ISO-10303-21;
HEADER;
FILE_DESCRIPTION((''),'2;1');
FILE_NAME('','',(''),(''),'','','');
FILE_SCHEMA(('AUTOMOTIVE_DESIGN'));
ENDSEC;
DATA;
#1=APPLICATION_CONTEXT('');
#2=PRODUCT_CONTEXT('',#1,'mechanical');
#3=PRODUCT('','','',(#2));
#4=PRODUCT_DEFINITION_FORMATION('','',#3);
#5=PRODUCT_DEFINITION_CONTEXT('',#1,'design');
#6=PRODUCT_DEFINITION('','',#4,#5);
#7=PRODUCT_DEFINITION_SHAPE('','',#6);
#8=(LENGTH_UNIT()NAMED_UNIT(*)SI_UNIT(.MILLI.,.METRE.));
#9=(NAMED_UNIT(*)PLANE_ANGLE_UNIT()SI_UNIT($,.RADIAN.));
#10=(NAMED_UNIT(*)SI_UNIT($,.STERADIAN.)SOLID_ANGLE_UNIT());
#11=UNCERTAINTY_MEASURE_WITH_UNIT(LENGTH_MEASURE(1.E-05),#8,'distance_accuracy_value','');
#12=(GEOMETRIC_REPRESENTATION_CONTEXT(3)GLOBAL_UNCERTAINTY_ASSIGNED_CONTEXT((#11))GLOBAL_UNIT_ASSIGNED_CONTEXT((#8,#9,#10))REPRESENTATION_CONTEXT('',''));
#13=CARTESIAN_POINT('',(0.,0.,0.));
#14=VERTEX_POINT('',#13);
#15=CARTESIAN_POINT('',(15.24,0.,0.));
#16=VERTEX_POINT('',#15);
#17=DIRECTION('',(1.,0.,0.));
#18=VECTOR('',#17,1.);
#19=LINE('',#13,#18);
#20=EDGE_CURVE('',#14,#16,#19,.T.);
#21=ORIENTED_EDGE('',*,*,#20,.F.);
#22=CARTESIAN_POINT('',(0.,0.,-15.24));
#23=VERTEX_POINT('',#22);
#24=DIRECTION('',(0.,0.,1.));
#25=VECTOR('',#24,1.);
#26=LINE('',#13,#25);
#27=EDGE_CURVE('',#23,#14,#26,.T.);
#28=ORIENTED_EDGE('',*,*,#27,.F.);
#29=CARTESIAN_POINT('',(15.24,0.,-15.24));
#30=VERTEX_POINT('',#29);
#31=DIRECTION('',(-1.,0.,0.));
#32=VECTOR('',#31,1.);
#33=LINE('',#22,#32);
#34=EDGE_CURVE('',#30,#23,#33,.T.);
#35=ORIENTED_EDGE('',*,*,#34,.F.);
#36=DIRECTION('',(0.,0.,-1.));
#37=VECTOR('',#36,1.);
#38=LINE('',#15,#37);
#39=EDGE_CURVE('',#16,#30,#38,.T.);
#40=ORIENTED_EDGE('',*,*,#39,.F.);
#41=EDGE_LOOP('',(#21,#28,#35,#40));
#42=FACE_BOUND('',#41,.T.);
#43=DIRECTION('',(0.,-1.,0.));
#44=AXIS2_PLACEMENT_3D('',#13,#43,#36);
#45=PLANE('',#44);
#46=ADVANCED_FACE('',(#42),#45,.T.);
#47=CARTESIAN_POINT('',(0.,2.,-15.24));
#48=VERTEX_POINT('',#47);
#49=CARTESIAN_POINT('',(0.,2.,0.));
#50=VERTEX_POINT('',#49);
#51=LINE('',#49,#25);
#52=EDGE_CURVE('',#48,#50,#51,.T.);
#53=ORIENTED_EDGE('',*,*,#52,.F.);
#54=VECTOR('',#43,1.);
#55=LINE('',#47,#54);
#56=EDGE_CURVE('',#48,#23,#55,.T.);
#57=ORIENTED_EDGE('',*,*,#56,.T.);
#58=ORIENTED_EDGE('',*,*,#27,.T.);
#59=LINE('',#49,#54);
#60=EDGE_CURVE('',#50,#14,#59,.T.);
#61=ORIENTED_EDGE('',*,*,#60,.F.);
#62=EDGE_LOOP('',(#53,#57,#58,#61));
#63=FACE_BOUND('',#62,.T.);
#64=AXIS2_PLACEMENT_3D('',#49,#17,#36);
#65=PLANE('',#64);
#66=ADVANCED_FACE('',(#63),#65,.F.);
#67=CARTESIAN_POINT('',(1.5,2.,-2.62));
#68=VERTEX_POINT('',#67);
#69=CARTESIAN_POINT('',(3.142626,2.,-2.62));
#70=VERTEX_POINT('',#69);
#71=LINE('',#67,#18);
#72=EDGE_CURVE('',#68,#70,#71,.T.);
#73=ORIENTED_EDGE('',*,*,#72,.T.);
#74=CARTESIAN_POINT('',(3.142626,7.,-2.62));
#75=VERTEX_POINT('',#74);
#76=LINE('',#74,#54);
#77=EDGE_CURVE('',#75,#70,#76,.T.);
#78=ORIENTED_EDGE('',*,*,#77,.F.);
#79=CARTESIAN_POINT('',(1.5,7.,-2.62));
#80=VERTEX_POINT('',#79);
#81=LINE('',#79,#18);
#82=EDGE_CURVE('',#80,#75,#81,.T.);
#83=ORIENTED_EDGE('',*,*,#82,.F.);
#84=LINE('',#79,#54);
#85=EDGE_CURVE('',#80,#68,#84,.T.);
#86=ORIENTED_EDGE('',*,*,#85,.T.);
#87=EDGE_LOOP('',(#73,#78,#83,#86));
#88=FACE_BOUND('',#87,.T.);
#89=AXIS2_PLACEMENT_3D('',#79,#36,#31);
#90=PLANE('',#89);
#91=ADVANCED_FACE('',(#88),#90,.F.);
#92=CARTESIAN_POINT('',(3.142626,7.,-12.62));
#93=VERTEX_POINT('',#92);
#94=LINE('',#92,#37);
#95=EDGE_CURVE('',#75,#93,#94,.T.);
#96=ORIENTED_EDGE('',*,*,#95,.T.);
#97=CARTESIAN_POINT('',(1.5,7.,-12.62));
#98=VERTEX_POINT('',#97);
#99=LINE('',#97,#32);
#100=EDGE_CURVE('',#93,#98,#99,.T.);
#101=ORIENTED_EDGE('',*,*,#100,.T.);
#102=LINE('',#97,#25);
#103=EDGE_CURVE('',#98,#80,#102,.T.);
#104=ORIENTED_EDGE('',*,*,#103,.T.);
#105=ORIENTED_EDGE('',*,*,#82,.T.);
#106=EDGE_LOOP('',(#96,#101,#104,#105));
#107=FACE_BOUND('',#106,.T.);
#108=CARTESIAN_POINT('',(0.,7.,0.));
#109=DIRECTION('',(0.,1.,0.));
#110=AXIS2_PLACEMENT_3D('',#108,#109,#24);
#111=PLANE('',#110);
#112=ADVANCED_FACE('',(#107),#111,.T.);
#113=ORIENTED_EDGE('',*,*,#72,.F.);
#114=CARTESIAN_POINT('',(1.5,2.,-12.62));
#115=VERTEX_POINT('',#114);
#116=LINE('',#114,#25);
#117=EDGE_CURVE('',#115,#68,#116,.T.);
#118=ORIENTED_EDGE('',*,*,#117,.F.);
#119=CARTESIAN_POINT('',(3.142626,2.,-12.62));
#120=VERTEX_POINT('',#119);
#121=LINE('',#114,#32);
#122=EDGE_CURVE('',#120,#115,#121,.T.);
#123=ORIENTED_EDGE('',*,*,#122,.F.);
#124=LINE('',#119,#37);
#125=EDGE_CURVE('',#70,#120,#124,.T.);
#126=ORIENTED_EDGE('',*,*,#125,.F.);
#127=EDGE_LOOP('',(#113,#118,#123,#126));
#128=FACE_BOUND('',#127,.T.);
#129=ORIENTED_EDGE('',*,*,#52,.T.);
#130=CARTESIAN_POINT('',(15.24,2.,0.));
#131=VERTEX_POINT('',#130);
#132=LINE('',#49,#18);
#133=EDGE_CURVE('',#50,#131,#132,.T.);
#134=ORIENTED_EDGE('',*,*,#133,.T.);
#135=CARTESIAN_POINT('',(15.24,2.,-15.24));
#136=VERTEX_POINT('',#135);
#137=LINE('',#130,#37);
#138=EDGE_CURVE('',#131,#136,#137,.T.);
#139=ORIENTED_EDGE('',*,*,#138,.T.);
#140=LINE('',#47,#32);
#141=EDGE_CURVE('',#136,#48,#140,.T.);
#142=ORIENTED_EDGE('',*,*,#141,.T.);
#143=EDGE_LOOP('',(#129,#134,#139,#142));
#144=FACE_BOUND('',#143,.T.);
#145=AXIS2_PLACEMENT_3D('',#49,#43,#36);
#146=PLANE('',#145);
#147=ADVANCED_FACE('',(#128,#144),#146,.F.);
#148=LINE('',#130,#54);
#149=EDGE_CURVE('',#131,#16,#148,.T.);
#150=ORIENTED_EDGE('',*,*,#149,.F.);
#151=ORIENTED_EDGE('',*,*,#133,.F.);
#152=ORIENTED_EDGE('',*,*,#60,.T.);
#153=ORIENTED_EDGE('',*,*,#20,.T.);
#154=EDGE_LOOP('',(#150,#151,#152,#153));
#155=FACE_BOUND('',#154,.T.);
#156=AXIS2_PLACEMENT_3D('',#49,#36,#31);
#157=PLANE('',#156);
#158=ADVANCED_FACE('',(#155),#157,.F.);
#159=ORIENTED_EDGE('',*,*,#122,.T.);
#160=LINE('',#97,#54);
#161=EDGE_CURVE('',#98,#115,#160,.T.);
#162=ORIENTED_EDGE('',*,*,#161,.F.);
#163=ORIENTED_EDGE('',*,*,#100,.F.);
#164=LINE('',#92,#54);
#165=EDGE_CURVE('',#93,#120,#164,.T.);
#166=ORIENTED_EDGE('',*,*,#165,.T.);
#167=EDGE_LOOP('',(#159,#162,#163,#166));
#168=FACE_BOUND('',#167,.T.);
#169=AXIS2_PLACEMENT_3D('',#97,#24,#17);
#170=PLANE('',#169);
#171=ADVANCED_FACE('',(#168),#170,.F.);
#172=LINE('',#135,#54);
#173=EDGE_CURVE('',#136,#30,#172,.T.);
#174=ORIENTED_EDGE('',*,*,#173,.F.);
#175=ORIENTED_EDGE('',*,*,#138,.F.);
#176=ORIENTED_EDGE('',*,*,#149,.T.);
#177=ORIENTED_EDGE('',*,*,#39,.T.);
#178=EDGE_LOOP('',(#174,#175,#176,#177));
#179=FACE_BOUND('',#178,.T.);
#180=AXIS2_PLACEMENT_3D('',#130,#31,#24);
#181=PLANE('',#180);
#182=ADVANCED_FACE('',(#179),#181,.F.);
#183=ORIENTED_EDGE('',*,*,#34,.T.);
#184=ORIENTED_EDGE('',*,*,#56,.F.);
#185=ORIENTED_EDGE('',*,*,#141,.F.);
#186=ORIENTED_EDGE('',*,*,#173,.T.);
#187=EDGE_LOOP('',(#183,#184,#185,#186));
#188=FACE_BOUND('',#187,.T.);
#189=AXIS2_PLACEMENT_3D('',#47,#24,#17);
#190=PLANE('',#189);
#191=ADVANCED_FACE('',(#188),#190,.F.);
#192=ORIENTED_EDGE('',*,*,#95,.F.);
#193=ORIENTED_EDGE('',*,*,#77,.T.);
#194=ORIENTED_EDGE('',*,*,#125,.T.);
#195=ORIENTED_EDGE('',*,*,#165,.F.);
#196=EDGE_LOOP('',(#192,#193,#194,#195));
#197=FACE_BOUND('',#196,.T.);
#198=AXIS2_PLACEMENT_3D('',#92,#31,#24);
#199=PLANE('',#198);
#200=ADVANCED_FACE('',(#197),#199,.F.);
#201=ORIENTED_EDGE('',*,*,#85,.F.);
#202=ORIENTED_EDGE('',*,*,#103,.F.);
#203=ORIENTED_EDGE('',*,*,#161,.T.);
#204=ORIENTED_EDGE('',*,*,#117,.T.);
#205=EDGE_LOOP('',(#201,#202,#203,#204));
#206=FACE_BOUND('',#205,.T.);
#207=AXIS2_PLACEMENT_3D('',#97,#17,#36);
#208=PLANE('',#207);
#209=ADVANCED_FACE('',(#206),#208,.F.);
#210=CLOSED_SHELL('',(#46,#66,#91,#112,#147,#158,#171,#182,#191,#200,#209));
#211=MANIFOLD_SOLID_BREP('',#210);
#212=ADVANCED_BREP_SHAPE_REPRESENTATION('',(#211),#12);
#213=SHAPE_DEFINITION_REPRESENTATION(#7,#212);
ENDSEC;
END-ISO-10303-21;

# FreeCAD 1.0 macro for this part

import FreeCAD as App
import Part
import Sketcher
from FreeCAD import Vector
Q = App.Units.Quantity


def add_polygon(sketch, points):
    """Adds a closed chain of lines whose ends are joined by coincident constraints."""
    first, n = sketch.GeometryCount, len(points)
    for a, b in zip(points, points[1:] + points[:1]):
        sketch.addGeometry(Part.LineSegment(App.Vector(*a, 0), App.Vector(*b, 0)), False)
    for i in range(n):
        sketch.addConstraint(Sketcher.Constraint("Coincident", first + i, 2, first + (i + 1) % n, 1))

doc = App.newDocument("Part")
params = doc.addObject("Spreadsheet::Sheet", "Params")
for row, (alias, value) in enumerate([
    ("sketch1_width", "15.24 mm"),
    ("pad1_length", "2 mm"),
    ("sketch2_height", "10 mm"),
    ("pad2_length", "5 mm"),
], start=1):
    params.set(f"A{row}", alias)
    params.set(f"B{row}", "=" + value)
    params.setAlias(f"B{row}", alias)

body = doc.addObject("PartDesign::Body", "Body")

# Sketch on XZ plane
sketch1 = body.newObject("Sketcher::SketchObject", "Sketch")
sketch1.AttachmentSupport = (doc.getObject("XZ_Plane"), [""])
sketch1.MapMode = "FlatFace"
add_polygon(sketch1, [(0, -15.24), (0, 0), (15.24, 0), (15.24, -15.24)])  # lines 0-3
sketch1.addConstraint(Sketcher.Constraint("Vertical", 0))
sketch1.addConstraint(Sketcher.Constraint("Horizontal", 1))
sketch1.addConstraint(Sketcher.Constraint("Vertical", 2))
sketch1.addConstraint(Sketcher.Constraint("Horizontal", 3))
sketch1.addConstraint(Sketcher.Constraint("Coincident", 0, 2, -1, 1))
sketch1.addConstraint(Sketcher.Constraint("Equal", 3, 0))
sketch1.addConstraint(Sketcher.Constraint("DistanceX", 1, 1, 1, 2, Q("15.24 mm")))
sketch1.setExpression("Constraints[10]", "Params.sketch1_width")
pad1 = body.newObject("PartDesign::Pad", "Pad")
pad1.Profile = sketch1
pad1.setExpression("Length", "Params.pad1_length")
pad1.Reversed = True

# Sketch on XZ plane
sketch2 = body.newObject("Sketcher::SketchObject", "Sketch001")
sketch2.AttachmentSupport = (doc.getObject("XZ_Plane"), [""])
sketch2.MapMode = "FlatFace"
sketch2.AttachmentOffset = App.Placement(Vector(0, 0, -2), App.Rotation())
add_polygon(sketch2, [(1.5, -12.62), (1.5, -2.62), (3.142626, -2.62), (3.142626, -12.62)])  # lines 0-3
sketch2.addConstraint(Sketcher.Constraint("Vertical", 0))
sketch2.addConstraint(Sketcher.Constraint("Horizontal", 1))
sketch2.addConstraint(Sketcher.Constraint("Vertical", 2))
sketch2.addConstraint(Sketcher.Constraint("Horizontal", 3))
sketch2.addConstraint(Sketcher.Constraint("DistanceY", 0, 1, 0, 2, Q("10 mm")))
sketch2.addConstraint(Sketcher.Constraint("DistanceX", -1, 1, 0, 2, Q("1.5 mm")))
sketch2.addConstraint(Sketcher.Constraint("DistanceY", 0, 2, -1, 1, Q("2.62 mm")))
sketch2.addConstraint(Sketcher.Constraint("DistanceX", 1, 1, 1, 2, Q("1.642626 mm")))
sketch2.setExpression("Constraints[8]", "Params.sketch2_height")
pad2 = body.newObject("PartDesign::Pad", "Pad001")
pad2.Profile = sketch2
pad2.setExpression("Length", "Params.pad2_length")
pad2.Reversed = True

doc.recompute()
